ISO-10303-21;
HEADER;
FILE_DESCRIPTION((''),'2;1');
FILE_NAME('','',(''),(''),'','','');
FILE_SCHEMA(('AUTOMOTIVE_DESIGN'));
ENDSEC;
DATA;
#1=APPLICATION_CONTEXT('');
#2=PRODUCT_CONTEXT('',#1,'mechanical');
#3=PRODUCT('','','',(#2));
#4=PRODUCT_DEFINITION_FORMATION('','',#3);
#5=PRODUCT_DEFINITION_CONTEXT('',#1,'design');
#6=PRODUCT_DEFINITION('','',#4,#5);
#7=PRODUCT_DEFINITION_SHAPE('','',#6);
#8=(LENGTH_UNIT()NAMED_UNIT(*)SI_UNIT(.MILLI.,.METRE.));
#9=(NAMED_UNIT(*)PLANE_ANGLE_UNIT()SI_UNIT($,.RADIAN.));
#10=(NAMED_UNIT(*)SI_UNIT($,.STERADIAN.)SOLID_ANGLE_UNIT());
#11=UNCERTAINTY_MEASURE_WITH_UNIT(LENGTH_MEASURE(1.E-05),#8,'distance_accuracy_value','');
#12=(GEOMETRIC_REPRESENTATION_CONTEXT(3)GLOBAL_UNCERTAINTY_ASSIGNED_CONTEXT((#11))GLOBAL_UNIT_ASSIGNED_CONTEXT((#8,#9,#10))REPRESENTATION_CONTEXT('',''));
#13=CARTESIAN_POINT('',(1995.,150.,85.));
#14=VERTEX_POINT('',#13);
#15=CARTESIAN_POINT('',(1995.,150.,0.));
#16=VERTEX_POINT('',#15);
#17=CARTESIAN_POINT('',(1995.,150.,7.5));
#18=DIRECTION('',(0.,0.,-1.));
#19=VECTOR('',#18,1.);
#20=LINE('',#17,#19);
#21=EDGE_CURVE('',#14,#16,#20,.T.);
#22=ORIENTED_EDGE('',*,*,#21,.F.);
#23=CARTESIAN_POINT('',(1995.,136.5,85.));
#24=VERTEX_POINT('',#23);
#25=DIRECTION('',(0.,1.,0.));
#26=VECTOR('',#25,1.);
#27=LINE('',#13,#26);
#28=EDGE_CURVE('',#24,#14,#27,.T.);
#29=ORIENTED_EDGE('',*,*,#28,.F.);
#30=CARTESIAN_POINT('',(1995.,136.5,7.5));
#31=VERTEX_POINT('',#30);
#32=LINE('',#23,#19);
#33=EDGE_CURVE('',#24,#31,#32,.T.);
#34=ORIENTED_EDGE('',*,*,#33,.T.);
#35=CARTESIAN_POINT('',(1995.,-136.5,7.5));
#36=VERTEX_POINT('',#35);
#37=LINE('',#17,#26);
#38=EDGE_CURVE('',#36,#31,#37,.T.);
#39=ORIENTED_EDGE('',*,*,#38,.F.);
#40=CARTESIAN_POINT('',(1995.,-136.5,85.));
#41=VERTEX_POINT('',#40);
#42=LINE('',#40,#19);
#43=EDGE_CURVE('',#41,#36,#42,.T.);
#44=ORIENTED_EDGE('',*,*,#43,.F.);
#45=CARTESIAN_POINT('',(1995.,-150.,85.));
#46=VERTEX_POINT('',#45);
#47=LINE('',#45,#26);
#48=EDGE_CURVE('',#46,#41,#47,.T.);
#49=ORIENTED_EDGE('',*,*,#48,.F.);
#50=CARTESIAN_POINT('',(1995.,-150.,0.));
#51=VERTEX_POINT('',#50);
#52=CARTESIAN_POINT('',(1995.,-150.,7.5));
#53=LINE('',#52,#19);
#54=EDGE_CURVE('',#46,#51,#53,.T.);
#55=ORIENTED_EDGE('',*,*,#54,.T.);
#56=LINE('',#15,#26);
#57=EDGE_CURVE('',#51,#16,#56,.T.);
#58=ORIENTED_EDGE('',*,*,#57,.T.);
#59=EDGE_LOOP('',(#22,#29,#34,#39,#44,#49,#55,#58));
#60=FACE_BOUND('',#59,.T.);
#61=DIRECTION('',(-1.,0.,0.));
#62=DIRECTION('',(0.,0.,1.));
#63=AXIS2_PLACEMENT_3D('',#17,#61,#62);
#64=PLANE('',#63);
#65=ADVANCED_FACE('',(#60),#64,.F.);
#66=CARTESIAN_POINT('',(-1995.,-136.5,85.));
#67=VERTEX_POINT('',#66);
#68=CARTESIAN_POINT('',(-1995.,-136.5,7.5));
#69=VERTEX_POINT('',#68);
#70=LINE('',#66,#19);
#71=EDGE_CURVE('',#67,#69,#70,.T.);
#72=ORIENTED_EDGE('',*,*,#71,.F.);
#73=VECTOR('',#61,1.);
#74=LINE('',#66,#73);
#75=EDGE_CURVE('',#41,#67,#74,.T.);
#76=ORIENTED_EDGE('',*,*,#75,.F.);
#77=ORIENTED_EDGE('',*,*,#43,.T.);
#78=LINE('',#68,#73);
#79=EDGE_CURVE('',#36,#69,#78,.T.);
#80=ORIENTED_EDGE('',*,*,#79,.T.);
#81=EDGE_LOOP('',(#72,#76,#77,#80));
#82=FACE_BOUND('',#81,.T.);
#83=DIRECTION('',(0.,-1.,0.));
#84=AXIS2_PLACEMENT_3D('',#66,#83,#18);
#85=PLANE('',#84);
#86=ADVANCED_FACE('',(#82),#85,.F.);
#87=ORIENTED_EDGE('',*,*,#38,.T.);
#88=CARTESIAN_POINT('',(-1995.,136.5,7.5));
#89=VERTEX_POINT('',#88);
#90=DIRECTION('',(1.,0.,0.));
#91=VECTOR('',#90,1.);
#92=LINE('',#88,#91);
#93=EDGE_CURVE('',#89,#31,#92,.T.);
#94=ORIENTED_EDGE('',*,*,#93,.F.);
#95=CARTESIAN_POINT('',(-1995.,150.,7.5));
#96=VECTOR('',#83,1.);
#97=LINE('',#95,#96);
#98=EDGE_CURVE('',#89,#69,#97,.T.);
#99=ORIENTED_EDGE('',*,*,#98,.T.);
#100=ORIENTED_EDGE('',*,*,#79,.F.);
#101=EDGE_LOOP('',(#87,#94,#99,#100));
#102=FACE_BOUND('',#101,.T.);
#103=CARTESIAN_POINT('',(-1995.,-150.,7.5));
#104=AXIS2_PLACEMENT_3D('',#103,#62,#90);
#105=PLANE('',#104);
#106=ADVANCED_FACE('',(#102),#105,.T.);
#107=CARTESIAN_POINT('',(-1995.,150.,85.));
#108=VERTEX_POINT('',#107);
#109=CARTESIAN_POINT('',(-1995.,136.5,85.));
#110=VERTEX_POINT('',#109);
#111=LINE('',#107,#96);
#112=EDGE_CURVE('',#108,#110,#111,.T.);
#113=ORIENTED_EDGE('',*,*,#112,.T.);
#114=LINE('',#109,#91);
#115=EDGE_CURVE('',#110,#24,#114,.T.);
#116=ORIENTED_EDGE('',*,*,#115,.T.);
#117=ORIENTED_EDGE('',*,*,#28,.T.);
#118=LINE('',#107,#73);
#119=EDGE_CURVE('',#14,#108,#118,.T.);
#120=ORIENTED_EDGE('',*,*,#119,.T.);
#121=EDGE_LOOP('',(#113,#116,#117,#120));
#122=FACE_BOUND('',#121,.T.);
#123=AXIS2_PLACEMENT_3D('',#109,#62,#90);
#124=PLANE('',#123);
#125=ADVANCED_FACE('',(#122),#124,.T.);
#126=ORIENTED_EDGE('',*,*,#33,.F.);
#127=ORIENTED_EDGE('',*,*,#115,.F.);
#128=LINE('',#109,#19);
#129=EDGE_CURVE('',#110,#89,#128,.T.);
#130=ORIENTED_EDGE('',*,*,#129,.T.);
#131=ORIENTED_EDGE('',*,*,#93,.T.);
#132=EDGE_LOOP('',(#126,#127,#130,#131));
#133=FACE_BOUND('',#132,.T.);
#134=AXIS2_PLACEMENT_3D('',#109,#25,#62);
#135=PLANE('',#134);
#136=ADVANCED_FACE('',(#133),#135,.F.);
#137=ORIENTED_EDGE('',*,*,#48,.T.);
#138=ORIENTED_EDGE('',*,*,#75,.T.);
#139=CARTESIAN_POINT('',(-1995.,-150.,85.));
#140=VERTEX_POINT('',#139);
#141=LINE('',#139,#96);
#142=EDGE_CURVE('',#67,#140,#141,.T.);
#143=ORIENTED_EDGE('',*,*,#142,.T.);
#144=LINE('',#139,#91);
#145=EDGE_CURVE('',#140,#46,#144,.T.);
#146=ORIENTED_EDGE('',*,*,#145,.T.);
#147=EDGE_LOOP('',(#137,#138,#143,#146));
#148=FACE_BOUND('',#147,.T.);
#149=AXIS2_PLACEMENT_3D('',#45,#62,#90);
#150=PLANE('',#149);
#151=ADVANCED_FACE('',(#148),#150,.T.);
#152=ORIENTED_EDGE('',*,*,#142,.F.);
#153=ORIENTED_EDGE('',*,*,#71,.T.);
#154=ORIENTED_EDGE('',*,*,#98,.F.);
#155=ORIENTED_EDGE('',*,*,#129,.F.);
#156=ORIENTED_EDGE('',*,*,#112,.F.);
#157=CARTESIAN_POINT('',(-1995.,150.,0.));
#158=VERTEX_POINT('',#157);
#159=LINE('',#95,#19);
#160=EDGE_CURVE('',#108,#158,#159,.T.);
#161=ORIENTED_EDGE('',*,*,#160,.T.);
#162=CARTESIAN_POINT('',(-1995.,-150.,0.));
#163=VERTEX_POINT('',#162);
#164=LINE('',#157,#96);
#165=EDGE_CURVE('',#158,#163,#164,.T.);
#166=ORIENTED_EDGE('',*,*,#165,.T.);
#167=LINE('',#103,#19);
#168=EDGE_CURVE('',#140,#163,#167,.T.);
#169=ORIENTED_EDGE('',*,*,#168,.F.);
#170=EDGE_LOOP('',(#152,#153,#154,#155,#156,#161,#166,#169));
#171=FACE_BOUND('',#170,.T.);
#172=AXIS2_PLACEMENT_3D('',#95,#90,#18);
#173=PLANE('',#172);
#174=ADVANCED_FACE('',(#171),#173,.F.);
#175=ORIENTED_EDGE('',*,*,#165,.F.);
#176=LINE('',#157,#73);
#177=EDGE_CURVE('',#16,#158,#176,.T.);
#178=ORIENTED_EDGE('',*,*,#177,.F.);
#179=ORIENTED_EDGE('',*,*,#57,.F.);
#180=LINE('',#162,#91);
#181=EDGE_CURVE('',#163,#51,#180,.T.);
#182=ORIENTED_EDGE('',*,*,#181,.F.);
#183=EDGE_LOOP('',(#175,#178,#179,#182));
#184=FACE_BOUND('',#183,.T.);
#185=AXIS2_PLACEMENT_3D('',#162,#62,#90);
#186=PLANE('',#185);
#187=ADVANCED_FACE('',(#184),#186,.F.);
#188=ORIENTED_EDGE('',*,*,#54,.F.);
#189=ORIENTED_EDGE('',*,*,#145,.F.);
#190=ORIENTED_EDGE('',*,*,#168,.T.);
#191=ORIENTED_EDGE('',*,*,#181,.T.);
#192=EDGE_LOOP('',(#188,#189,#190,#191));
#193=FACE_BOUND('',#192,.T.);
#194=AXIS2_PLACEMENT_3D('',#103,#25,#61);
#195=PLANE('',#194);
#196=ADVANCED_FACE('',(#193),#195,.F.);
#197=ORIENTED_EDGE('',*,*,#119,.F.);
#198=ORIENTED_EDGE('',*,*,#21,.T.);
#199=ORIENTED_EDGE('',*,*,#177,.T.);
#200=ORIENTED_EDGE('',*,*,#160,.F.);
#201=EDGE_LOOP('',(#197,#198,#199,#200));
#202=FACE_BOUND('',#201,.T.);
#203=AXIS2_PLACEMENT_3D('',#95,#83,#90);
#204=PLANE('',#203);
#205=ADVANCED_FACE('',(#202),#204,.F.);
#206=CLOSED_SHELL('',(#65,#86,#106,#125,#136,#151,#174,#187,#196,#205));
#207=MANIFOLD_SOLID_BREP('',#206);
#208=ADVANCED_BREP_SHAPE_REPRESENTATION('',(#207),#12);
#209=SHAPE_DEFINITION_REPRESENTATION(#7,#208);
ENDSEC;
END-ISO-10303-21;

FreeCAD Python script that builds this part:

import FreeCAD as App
import Part
import Sketcher
from FreeCAD import Vector

doc = App.newDocument("Part")
body = doc.addObject("PartDesign::Body", "Body")

sketch1 = body.newObject("Sketcher::SketchObject", "Sketch")
sketch1.AttachmentSupport = (doc.getObject("XY_Plane"), [""])
sketch1.MapMode = "FlatFace"
sketch1.addGeometry([
    Part.LineSegment(Vector(-1995, 150, 0), Vector(-1995, -150, 0)),
    Part.LineSegment(Vector(-1995, -150, 0), Vector(1995, -150, 0)),
    Part.LineSegment(Vector(1995, -150, 0), Vector(1995, 150, 0)),
    Part.LineSegment(Vector(1995, 150, 0), Vector(-1995, 150, 0)),
], False)
sketch1.addConstraint([
    Sketcher.Constraint("Coincident", 0, 2, 1, 1),
    Sketcher.Constraint("Coincident", 1, 2, 2, 1),
    Sketcher.Constraint("Coincident", 2, 2, 3, 1),
    Sketcher.Constraint("Coincident", 3, 2, 0, 1),
    Sketcher.Constraint("Vertical", 0),
    Sketcher.Constraint("Horizontal", 1),
    Sketcher.Constraint("Vertical", 2),
    Sketcher.Constraint("Horizontal", 3),
    Sketcher.Constraint("Symmetric", 0, 2, 2, 2, -1, 1),
    Sketcher.Constraint("DistanceX", 1, 1, 1, 2, 3990.0),
    Sketcher.Constraint("DistanceY", 0, 2, 0, 1, 300.0),
])
pad1 = body.newObject("PartDesign::Pad", "Pad")
pad1.Profile = sketch1
pad1.Length = 7.5

sketch2 = body.newObject("Sketcher::SketchObject", "Sketch001")
sketch2.AttachmentSupport = (doc.getObject("XY_Plane"), [""])
sketch2.MapMode = "FlatFace"
sketch2.AttachmentOffset = App.Placement(Vector(0, 0, 7.5), App.Rotation())
sketch2.addGeometry([
    Part.LineSegment(Vector(-1995, 150, 0), Vector(-1995, 136.5, 0)),
    Part.LineSegment(Vector(-1995, 136.5, 0), Vector(1995, 136.5, 0)),
    Part.LineSegment(Vector(1995, 136.5, 0), Vector(1995, 150, 0)),
    Part.LineSegment(Vector(1995, 150, 0), Vector(-1995, 150, 0)),
    Part.LineSegment(Vector(-1995, -136.5, 0), Vector(-1995, -150, 0)),
    Part.LineSegment(Vector(-1995, -150, 0), Vector(1995, -150, 0)),
    Part.LineSegment(Vector(1995, -150, 0), Vector(1995, -136.5, 0)),
    Part.LineSegment(Vector(1995, -136.5, 0), Vector(-1995, -136.5, 0)),
], False)
sketch2.addConstraint([
    Sketcher.Constraint("Coincident", 0, 2, 1, 1),
    Sketcher.Constraint("Coincident", 1, 2, 2, 1),
    Sketcher.Constraint("Coincident", 2, 2, 3, 1),
    Sketcher.Constraint("Coincident", 3, 2, 0, 1),
    Sketcher.Constraint("Coincident", 4, 2, 5, 1),
    Sketcher.Constraint("Coincident", 5, 2, 6, 1),
    Sketcher.Constraint("Coincident", 6, 2, 7, 1),
    Sketcher.Constraint("Coincident", 7, 2, 4, 1),
    Sketcher.Constraint("Vertical", 0),
    Sketcher.Constraint("Horizontal", 1),
    Sketcher.Constraint("Vertical", 2),
    Sketcher.Constraint("Horizontal", 3),
    Sketcher.Constraint("Vertical", 4),
    Sketcher.Constraint("Horizontal", 5),
    Sketcher.Constraint("Vertical", 6),
    Sketcher.Constraint("Horizontal", 7),
    Sketcher.Constraint("Symmetric", 2, 2, 4, 2, -1, 1),
    Sketcher.Constraint("Symmetric", 0, 2, 6, 2, -1, 1),
    Sketcher.Constraint("Vertical", 3, 2, 4, 2),
    Sketcher.Constraint("DistanceX", 1, 1, 1, 2, 3990.0),
    Sketcher.Constraint("DistanceY", 0, 2, 0, 1, 13.5),
    Sketcher.Constraint("DistanceY", -1, 1, 2, 2, 150.0),
])
pad2 = body.newObject("PartDesign::Pad", "Pad001")
pad2.Profile = sketch2
pad2.Length = 77.5

doc.recompute()
